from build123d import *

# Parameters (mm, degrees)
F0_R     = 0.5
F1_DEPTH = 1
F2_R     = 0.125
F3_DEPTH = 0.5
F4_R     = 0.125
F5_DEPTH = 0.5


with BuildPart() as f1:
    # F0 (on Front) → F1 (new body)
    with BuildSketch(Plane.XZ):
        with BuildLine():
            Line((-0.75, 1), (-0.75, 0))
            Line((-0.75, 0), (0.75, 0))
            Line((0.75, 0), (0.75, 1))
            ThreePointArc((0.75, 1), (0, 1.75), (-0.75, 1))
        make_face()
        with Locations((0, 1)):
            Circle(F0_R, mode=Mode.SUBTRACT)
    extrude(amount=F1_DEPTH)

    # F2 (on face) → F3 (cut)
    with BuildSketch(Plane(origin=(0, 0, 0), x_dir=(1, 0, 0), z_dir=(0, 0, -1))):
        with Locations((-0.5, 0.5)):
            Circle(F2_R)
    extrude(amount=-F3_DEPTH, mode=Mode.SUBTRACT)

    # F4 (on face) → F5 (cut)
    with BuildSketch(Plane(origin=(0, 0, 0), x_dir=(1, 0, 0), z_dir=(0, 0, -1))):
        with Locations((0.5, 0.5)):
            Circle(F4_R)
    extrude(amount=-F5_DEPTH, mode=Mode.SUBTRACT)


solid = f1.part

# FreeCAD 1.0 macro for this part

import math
import FreeCAD as App
import Part
import Sketcher

doc = App.newDocument("Part")
body = doc.addObject("PartDesign::Body", "Body")

sketch1 = body.newObject("Sketcher::SketchObject", "Sketch")
sketch1.AttachmentSupport = (doc.getObject("XZ_Plane"), [""])
sketch1.MapMode = "FlatFace"
sketch1.addGeometry([
    Part.LineSegment(App.Vector(-0.8, 1, 0), App.Vector(-0.8, 0, 0)),
    Part.LineSegment(App.Vector(-0.8, 0, 0), App.Vector(0.8, 0, 0)),
    Part.LineSegment(App.Vector(0.8, 0, 0), App.Vector(0.8, 1, 0)),
    Part.ArcOfCircle(Part.Circle(App.Vector(0, 1, 0), App.Vector(0, 0, 1), 0.8), math.radians(0), math.radians(180)),
    Part.Circle(App.Vector(0, 1, 0), App.Vector(0, 0, 1), 0.5),
], False)
sketch1.addConstraint([
    Sketcher.Constraint("Coincident", 0, 2, 1, 1),
    Sketcher.Constraint("Coincident", 1, 2, 2, 1),
    Sketcher.Constraint("Tangent", 2, 2, 3, 1),
    Sketcher.Constraint("Tangent", 3, 2, 0, 1),
    Sketcher.Constraint("Vertical", 0),
    Sketcher.Constraint("Horizontal", 1),
    Sketcher.Constraint("Vertical", 2),
    Sketcher.Constraint("Coincident", 4, 3, 3, 3),
    Sketcher.Constraint("Symmetric", 0, 2, 1, 2, -1, 1),
    Sketcher.Constraint("Diameter", 4, 1.0),
    Sketcher.Constraint("DistanceY", 0, 2, 0, 1, 1.0),
    Sketcher.Constraint("Radius", 3, 0.75),
])
pad1 = body.newObject("PartDesign::Pad", "Pad")
pad1.Profile = sketch1
pad1.Length = 1

sketch2 = body.newObject("Sketcher::SketchObject", "Sketch001")
sketch2.AttachmentSupport = (doc.getObject("XY_Plane"), [""])
sketch2.MapMode = "FlatFace"
sketch2.addGeometry(Part.Circle(App.Vector(-0.5, -0.5, 0), App.Vector(0, 0, 1), 0.12), False)
sketch2.addConstraint([
    Sketcher.Constraint("Diameter", 0, 0.25),
    Sketcher.Constraint("DistanceX", 0, 3, -1, 1, 0.5),
    Sketcher.Constraint("DistanceY", 0, 3, -1, 1, 0.5),
])
pocket1 = body.newObject("PartDesign::Pocket", "Pocket")
pocket1.Profile = sketch2
pocket1.Length = 0.5
pocket1.Reversed = True

sketch3 = body.newObject("Sketcher::SketchObject", "Sketch002")
sketch3.AttachmentSupport = (doc.getObject("XY_Plane"), [""])
sketch3.MapMode = "FlatFace"
sketch3.addGeometry(Part.Circle(App.Vector(0.5, -0.5, 0), App.Vector(0, 0, 1), 0.12), False)
sketch3.addConstraint([
    Sketcher.Constraint("Diameter", 0, 0.25),
    Sketcher.Constraint("DistanceX", -1, 1, 0, 3, 0.5),
    Sketcher.Constraint("DistanceY", 0, 3, -1, 1, 0.5),
])
pocket2 = body.newObject("PartDesign::Pocket", "Pocket001")
pocket2.Profile = sketch3
pocket2.Length = 0.5
pocket2.Reversed = True

doc.recompute()
